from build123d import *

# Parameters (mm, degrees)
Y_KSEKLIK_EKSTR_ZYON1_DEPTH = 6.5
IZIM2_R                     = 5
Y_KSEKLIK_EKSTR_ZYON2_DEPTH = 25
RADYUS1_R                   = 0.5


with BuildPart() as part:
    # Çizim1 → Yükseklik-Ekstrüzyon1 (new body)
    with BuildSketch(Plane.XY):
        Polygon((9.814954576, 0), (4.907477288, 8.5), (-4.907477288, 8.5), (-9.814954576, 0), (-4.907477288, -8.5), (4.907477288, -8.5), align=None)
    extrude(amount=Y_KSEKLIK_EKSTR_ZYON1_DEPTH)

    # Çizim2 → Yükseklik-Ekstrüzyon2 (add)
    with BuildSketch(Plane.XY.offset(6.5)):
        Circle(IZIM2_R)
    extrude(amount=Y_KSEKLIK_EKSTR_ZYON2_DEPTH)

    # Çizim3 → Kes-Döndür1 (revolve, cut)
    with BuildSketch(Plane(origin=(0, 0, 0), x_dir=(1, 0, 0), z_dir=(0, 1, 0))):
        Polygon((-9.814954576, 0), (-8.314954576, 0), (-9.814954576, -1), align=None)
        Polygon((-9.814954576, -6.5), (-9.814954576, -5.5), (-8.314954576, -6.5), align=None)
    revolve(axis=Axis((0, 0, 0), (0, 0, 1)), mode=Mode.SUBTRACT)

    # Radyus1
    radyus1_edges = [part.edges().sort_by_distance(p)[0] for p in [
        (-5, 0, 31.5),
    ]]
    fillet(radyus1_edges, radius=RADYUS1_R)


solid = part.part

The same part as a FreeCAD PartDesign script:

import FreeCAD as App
import Part
import Sketcher
Q = App.Units.Quantity


def edges_at(feature, points):
    """Names of the edges that pass closest to the given points."""
    edges = feature.Shape.Edges
    near = lambda p: min(range(len(edges)), key=lambda i: edges[i].distToShape(Part.Vertex(*p))[0])
    return sorted({f"Edge{near(p) + 1}" for p in points})


def add_polygon(sketch, points):
    """Adds a closed chain of lines whose ends are joined by coincident constraints."""
    first, n = sketch.GeometryCount, len(points)
    for a, b in zip(points, points[1:] + points[:1]):
        sketch.addGeometry(Part.LineSegment(App.Vector(*a, 0), App.Vector(*b, 0)), False)
    for i in range(n):
        sketch.addConstraint(Sketcher.Constraint("Coincident", first + i, 2, first + (i + 1) % n, 1))

doc = App.newDocument("Part")
body = doc.addObject("PartDesign::Body", "Body")

# Sketch on XY plane
sketch1 = body.newObject("Sketcher::SketchObject", "Sketch")
sketch1.AttachmentSupport = (doc.getObject("XY_Plane"), [""])
sketch1.MapMode = "FlatFace"
add_polygon(sketch1, [(10, 0), (5, 8), (-5, 8), (-10, 0), (-5, -8), (5, -8)])  # lines 0-5
sketch1.addConstraint([
    Sketcher.Constraint("Horizontal", 1),
    Sketcher.Constraint("Horizontal", 4),
    Sketcher.Constraint("Symmetric", 0, 2, 3, 2, -1, 1),
    Sketcher.Constraint("Symmetric", 2, 2, 5, 2, -1, 1),
    Sketcher.Constraint("PointOnObject", 2, 2, -1),
    Sketcher.Constraint("Parallel", 2, 5),
    Sketcher.Constraint("Vertical", 1, 2, 3, 2),
    Sketcher.Constraint("Angle", 0, Q("120 deg")),
    Sketcher.Constraint("DistanceY", 3, 2, 1, 2, 17.0),
    Sketcher.Constraint("DistanceX", 1, 2, 1, 1, 9.814955),
])
pad1 = body.newObject("PartDesign::Pad", "Pad")
pad1.Profile = sketch1
pad1.Length = 6.5

# Sketch on XY plane
sketch2 = body.newObject("Sketcher::SketchObject", "Sketch001")
sketch2.AttachmentSupport = (doc.getObject("XY_Plane"), [""])
sketch2.MapMode = "FlatFace"
sketch2.AttachmentOffset = App.Placement(App.Vector(0, 0, 6.5), App.Rotation())
sketch2.addGeometry(Part.Circle(App.Vector(0, 0, 0), App.Vector(0, 0, 1), 5), False)
sketch2.addConstraint([
    Sketcher.Constraint("Coincident", 0, 3, -1, 1),
    Sketcher.Constraint("Diameter", 0, 10.0),
])
pad2 = body.newObject("PartDesign::Pad", "Pad001")
pad2.Profile = sketch2
pad2.Length = 25

# Sketch on XZ plane
sketch3 = body.newObject("Sketcher::SketchObject", "Sketch002")
sketch3.AttachmentSupport = (doc.getObject("XZ_Plane"), [""])
sketch3.MapMode = "FlatFace"
add_polygon(sketch3, [(-8.3, 0), (-9.8, 0), (-9.8, 1)])  # lines 0-2
add_polygon(sketch3, [(-9.8, 5.5), (-9.8, 6.5), (-8.3, 6.5)])  # lines 3-5
sketch3.addConstraint([
    Sketcher.Constraint("Horizontal", 0),
    Sketcher.Constraint("Vertical", 1),
    Sketcher.Constraint("Vertical", 3),
    Sketcher.Constraint("Horizontal", 4),
    Sketcher.Constraint("PointOnObject", 0, 2, -1),
    Sketcher.Constraint("Vertical", 1, 2, 3, 2),
    Sketcher.Constraint("Vertical", 2, 2, 4, 2),
    Sketcher.Constraint("Equal", 1, 3),
    Sketcher.Constraint("DistanceY", 1, 1, 1, 2, 1.0),
    Sketcher.Constraint("DistanceX", 0, 2, 0, 1, 1.5),
    Sketcher.Constraint("DistanceY", -1, 1, 3, 2, 6.5),
    Sketcher.Constraint("DistanceX", 0, 2, -1, 1, 9.814955),
])
groove = body.newObject("PartDesign::Groove", "Groove")
groove.Profile = sketch3
groove.ReferenceAxis = (sketch3, ["V_Axis"])
groove.Angle = 360
doc.recompute()

fillet = body.newObject("PartDesign::Fillet", "Fillet")
fillet.Base = (groove, edges_at(groove, [(-5, 0, 31.5)]))
fillet.Radius = 0.5

doc.recompute()
